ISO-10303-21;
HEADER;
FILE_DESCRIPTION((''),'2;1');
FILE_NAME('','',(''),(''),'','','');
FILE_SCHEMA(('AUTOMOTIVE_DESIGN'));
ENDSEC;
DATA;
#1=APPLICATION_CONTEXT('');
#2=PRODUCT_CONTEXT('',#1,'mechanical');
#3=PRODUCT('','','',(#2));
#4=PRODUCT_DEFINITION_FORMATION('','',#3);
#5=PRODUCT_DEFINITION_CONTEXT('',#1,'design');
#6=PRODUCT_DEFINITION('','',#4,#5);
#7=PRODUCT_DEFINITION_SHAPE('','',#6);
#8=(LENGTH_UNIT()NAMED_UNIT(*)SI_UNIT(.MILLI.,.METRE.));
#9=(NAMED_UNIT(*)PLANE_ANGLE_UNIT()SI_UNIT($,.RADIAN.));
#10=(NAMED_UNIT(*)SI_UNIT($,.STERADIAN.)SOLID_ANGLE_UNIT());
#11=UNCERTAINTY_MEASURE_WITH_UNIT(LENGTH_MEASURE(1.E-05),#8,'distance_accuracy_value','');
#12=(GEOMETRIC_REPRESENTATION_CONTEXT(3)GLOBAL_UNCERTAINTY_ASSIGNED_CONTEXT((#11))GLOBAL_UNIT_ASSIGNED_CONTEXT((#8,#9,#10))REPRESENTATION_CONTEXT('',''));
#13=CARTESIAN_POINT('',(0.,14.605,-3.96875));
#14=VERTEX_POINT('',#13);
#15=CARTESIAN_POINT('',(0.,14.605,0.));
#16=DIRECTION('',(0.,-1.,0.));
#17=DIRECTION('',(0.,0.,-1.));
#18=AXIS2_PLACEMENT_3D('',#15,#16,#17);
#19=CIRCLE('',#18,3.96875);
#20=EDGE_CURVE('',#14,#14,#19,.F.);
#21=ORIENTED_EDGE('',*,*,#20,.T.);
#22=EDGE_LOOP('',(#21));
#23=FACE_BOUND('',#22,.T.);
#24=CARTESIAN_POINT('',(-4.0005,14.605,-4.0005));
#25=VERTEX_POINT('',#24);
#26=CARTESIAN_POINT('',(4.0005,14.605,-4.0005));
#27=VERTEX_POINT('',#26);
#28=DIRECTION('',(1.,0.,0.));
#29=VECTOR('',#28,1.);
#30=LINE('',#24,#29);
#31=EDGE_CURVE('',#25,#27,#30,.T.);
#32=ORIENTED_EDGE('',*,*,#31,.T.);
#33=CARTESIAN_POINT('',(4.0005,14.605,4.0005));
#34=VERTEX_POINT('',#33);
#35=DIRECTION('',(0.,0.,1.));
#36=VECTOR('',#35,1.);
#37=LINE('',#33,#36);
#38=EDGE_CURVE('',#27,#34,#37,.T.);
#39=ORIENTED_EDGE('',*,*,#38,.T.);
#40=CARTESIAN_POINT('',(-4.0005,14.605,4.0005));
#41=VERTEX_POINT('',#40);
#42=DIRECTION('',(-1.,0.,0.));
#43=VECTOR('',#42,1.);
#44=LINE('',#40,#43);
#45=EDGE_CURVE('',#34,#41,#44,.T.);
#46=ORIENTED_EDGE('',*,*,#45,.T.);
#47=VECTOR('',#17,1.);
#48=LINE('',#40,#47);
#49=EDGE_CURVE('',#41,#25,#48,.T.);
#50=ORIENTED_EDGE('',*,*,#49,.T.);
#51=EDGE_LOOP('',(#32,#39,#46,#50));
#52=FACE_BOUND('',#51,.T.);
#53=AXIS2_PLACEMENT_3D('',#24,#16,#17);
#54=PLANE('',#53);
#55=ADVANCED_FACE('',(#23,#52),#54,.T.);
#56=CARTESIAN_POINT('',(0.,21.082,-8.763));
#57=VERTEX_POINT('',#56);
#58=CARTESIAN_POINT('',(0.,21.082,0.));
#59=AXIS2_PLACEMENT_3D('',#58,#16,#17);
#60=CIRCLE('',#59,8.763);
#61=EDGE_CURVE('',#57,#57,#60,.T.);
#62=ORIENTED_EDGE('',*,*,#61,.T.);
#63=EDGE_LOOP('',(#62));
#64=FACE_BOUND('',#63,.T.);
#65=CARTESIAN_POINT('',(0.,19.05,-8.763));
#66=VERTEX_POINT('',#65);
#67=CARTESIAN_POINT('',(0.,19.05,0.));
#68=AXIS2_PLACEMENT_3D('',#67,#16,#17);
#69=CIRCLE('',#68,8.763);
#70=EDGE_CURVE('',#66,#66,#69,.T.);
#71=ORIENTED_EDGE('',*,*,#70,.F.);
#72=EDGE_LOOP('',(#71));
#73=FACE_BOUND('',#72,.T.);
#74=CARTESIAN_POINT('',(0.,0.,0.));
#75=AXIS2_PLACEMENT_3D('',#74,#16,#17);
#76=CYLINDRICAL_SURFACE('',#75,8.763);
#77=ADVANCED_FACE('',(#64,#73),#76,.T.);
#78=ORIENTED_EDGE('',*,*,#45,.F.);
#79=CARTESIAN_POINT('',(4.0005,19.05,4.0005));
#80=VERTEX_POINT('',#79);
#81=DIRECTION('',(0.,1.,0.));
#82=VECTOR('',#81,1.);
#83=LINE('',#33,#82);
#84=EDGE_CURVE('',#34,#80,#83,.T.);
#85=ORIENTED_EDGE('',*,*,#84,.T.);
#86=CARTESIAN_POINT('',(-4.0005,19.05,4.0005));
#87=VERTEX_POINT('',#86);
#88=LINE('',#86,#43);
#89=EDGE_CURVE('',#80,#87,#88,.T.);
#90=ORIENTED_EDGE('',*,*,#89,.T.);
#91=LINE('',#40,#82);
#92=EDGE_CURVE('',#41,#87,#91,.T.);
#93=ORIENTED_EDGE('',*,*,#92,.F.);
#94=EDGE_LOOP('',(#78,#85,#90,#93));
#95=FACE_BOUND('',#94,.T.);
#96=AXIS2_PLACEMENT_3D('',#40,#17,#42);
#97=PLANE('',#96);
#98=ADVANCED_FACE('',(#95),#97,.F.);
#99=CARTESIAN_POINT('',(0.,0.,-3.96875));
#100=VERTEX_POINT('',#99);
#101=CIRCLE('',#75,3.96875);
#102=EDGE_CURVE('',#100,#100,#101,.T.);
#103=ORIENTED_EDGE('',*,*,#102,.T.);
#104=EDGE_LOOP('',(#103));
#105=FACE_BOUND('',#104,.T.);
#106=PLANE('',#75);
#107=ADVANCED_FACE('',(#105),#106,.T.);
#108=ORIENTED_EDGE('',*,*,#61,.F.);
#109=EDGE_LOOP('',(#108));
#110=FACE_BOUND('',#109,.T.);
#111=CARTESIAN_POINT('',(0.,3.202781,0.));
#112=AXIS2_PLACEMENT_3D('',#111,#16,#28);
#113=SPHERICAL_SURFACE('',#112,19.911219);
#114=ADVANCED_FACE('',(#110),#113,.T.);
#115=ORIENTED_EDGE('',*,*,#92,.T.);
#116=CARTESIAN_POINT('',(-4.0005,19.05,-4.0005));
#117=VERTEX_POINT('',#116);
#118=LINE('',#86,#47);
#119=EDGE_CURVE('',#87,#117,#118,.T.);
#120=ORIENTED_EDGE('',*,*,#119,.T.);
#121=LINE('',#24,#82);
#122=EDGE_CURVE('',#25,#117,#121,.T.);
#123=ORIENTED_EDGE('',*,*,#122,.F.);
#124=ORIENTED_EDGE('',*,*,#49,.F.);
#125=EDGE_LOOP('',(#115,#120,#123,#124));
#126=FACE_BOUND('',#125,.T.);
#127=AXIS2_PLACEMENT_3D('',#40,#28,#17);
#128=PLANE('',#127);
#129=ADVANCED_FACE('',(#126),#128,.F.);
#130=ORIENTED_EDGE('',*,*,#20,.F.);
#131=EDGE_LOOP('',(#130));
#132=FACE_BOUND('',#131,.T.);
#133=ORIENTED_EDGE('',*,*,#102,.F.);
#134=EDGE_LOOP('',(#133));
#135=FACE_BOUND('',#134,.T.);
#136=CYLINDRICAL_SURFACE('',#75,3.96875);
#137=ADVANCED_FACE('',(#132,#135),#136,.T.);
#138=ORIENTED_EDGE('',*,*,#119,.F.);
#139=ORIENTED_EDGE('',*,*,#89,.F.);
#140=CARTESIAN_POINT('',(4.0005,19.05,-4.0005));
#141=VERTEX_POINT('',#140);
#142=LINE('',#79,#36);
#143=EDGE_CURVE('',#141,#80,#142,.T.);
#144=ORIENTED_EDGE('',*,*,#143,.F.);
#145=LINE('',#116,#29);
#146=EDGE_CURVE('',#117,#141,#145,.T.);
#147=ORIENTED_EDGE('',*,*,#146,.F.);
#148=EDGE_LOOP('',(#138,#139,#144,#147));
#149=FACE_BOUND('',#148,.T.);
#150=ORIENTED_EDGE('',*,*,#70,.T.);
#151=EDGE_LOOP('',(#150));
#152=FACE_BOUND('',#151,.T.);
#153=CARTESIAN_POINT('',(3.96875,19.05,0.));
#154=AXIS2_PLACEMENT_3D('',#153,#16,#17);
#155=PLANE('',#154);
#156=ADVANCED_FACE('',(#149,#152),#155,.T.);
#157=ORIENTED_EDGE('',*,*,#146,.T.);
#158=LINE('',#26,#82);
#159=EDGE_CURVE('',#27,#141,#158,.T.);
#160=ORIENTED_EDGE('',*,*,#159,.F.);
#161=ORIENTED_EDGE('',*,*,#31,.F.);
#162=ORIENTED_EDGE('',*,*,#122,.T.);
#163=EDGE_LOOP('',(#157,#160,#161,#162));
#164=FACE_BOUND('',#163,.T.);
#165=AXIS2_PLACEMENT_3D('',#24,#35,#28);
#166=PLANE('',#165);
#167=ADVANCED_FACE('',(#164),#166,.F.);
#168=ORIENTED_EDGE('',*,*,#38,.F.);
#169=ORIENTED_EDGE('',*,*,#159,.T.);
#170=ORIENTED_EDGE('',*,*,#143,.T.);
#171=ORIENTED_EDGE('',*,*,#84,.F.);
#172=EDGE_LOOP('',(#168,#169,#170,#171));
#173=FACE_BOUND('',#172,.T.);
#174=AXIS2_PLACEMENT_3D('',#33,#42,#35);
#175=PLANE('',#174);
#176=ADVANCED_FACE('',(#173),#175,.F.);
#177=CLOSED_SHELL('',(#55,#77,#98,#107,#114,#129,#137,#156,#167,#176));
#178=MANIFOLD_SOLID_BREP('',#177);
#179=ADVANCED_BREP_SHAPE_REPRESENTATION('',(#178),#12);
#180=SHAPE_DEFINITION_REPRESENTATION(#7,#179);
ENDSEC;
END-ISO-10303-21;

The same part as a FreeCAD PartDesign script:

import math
import FreeCAD as App
import Part
import Sketcher
from FreeCAD import Vector
Q = App.Units.Quantity


def add_polygon(sketch, points):
    """Adds a closed chain of lines whose ends are joined by coincident constraints."""
    first, n = sketch.GeometryCount, len(points)
    for a, b in zip(points, points[1:] + points[:1]):
        sketch.addGeometry(Part.LineSegment(App.Vector(*a, 0), App.Vector(*b, 0)), False)
    for i in range(n):
        sketch.addConstraint(Sketcher.Constraint("Coincident", first + i, 2, first + (i + 1) % n, 1))

doc = App.newDocument("Part")
params = doc.addObject("Spreadsheet::Sheet", "Params")
for row, (alias, value) in enumerate([
    ("sketch1_height", "0.75 in"),
    ("sketch1_height2", "0.08 in"),
    ("sketch1_height3", "0.91 in"),
    ("sketch1_width", "0.15625 in"),
    ("revolution_angle", "360 deg"),
    ("sketch2_width", "0.315 in"),
    ("pad1_length", "0.175 in"),
], start=1):
    params.set(f"A{row}", alias)
    params.set(f"B{row}", "=" + value)
    params.setAlias(f"B{row}", alias)

body = doc.addObject("PartDesign::Body", "Body")

sketch1 = body.newObject("Sketcher::SketchObject", "Sketch")
sketch1.AttachmentSupport = (doc.getObject("XY_Plane"), [""])
sketch1.MapMode = "FlatFace"
sketch1.addGeometry([
    Part.LineSegment(Vector(0, 0, 0), Vector(4, 0, 0)),
    Part.LineSegment(Vector(4, 0, 0), Vector(4, 19.1, 0)),
    Part.LineSegment(Vector(4, 19.1, 0), Vector(8.8, 19.1, 0)),
    Part.LineSegment(Vector(8.8, 19.1, 0), Vector(8.8, 21.1, 0)),
    Part.ArcOfCircle(Part.Circle(Vector(0, 3.2, 0), Vector(0, 0, 1), 19.9), math.radians(64), math.radians(90)),
    Part.LineSegment(Vector(0, 23.1, 0), Vector(0, 0, 0)),
], False)
sketch1.addConstraint([
    Sketcher.Constraint("Coincident", 0, 2, 1, 1),
    Sketcher.Constraint("Coincident", 1, 2, 2, 1),
    Sketcher.Constraint("Coincident", 2, 2, 3, 1),
    Sketcher.Constraint("Coincident", 3, 2, 4, 1),
    Sketcher.Constraint("Coincident", 4, 2, 5, 1),
    Sketcher.Constraint("Coincident", 5, 2, 0, 1),
    Sketcher.Constraint("Horizontal", 0),
    Sketcher.Constraint("Vertical", 1),
    Sketcher.Constraint("Horizontal", 2),
    Sketcher.Constraint("Vertical", 3),
    Sketcher.Constraint("Vertical", 5),
    Sketcher.Constraint("Coincident", 5, 2, -1, 1),
    Sketcher.Constraint("PointOnObject", 4, 3, -2),
    Sketcher.Constraint("DistanceY", 1, 1, 1, 2, Q("0.75 in")),
    Sketcher.Constraint("DistanceY", 3, 1, 3, 2, Q("0.08 in")),
    Sketcher.Constraint("DistanceY", 5, 2, 5, 1, Q("0.91 in")),
    Sketcher.Constraint("DistanceX", 0, 1, 0, 2, Q("0.15625 in")),
    Sketcher.Constraint("DistanceX", -1, 1, 2, 2, Q("0.345 in")),
])
sketch1.setExpression("Constraints[13]", "Params.sketch1_height")
sketch1.setExpression("Constraints[14]", "Params.sketch1_height2")
sketch1.setExpression("Constraints[15]", "Params.sketch1_height3")
sketch1.setExpression("Constraints[16]", "Params.sketch1_width")
revolution = body.newObject("PartDesign::Revolution", "Revolution")
revolution.Profile = sketch1
revolution.ReferenceAxis = (sketch1, ["V_Axis"])
revolution.setExpression("Angle", "Params.revolution_angle")

sketch2 = body.newObject("Sketcher::SketchObject", "Sketch001")
sketch2.AttachmentSupport = (doc.getObject("XZ_Plane"), [""])
sketch2.MapMode = "FlatFace"
sketch2.AttachmentOffset = App.Placement(Vector(0, 0, -0.75 * 25.4), App.Rotation())
add_polygon(sketch2, [(-4, 4), (-4, -4), (4, -4), (4, 4)])
sketch2.addConstraint([
    Sketcher.Constraint("Vertical", 0),
    Sketcher.Constraint("Horizontal", 1),
    Sketcher.Constraint("Vertical", 2),
    Sketcher.Constraint("Horizontal", 3),
    Sketcher.Constraint("Symmetric", 0, 2, 2, 2, -1, 1),
    Sketcher.Constraint("Equal", 3, 0),
    Sketcher.Constraint("DistanceX", 1, 1, 1, 2, Q("0.315 in")),
])
sketch2.setExpression("Constraints[10]", "Params.sketch2_width")
pad1 = body.newObject("PartDesign::Pad", "Pad")
pad1.Profile = sketch2
pad1.setExpression("Length", "Params.pad1_length")

doc.recompute()
